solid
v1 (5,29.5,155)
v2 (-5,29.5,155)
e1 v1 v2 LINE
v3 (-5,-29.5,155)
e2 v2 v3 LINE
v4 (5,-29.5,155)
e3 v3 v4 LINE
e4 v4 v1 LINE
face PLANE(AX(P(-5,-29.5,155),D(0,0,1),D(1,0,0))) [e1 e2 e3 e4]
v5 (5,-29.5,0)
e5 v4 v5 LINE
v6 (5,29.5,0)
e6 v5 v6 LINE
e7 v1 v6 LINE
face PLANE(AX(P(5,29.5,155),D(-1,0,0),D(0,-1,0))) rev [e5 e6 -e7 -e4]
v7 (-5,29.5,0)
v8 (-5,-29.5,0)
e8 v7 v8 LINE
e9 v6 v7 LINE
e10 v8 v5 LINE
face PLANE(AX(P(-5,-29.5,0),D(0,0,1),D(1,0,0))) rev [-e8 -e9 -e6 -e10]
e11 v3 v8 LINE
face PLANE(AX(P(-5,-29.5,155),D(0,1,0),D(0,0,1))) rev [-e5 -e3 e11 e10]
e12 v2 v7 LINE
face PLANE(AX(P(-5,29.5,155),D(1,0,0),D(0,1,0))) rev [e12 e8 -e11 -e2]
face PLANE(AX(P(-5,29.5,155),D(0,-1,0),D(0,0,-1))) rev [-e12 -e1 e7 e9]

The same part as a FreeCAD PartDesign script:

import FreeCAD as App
import Part
import Sketcher
Q = App.Units.Quantity

doc = App.newDocument("Part")
params = doc.addObject("Spreadsheet::Sheet", "Params")
for row, (alias, value) in enumerate([
    ("sketch1_width", "10 mm"),
    ("sketch1_height", "59 mm"),
    ("pad1_length", "155 mm"),
], start=1):
    params.set(f"A{row}", alias)
    params.set(f"B{row}", "=" + value)
    params.setAlias(f"B{row}", alias)

body = doc.addObject("PartDesign::Body", "Body")

sketch1 = body.newObject("Sketcher::SketchObject", "Sketch")
sketch1.AttachmentSupport = (doc.getObject("XY_Plane"), [""])
sketch1.MapMode = "FlatFace"
sketch1.addGeometry([
    Part.LineSegment(App.Vector(-5, 29.5, 0), App.Vector(-5, -29.5, 0)),
    Part.LineSegment(App.Vector(-5, -29.5, 0), App.Vector(5, -29.5, 0)),
    Part.LineSegment(App.Vector(5, -29.5, 0), App.Vector(5, 29.5, 0)),
    Part.LineSegment(App.Vector(5, 29.5, 0), App.Vector(-5, 29.5, 0)),
], False)
sketch1.addConstraint([
    Sketcher.Constraint("Coincident", 0, 2, 1, 1),
    Sketcher.Constraint("Coincident", 1, 2, 2, 1),
    Sketcher.Constraint("Coincident", 2, 2, 3, 1),
    Sketcher.Constraint("Coincident", 3, 2, 0, 1),
    Sketcher.Constraint("Vertical", 0),
    Sketcher.Constraint("Horizontal", 1),
    Sketcher.Constraint("Vertical", 2),
    Sketcher.Constraint("Horizontal", 3),
    Sketcher.Constraint("Symmetric", 0, 2, 2, 2, -1, 1),
    Sketcher.Constraint("DistanceX", 1, 1, 1, 2, Q("10 mm")),
    Sketcher.Constraint("DistanceY", 0, 2, 0, 1, Q("59 mm")),
])
sketch1.setExpression("Constraints[9]", "Params.sketch1_width")
sketch1.setExpression("Constraints[10]", "Params.sketch1_height")
pad1 = body.newObject("PartDesign::Pad", "Pad")
pad1.Profile = sketch1
pad1.setExpression("Length", "Params.pad1_length")

doc.recompute()
